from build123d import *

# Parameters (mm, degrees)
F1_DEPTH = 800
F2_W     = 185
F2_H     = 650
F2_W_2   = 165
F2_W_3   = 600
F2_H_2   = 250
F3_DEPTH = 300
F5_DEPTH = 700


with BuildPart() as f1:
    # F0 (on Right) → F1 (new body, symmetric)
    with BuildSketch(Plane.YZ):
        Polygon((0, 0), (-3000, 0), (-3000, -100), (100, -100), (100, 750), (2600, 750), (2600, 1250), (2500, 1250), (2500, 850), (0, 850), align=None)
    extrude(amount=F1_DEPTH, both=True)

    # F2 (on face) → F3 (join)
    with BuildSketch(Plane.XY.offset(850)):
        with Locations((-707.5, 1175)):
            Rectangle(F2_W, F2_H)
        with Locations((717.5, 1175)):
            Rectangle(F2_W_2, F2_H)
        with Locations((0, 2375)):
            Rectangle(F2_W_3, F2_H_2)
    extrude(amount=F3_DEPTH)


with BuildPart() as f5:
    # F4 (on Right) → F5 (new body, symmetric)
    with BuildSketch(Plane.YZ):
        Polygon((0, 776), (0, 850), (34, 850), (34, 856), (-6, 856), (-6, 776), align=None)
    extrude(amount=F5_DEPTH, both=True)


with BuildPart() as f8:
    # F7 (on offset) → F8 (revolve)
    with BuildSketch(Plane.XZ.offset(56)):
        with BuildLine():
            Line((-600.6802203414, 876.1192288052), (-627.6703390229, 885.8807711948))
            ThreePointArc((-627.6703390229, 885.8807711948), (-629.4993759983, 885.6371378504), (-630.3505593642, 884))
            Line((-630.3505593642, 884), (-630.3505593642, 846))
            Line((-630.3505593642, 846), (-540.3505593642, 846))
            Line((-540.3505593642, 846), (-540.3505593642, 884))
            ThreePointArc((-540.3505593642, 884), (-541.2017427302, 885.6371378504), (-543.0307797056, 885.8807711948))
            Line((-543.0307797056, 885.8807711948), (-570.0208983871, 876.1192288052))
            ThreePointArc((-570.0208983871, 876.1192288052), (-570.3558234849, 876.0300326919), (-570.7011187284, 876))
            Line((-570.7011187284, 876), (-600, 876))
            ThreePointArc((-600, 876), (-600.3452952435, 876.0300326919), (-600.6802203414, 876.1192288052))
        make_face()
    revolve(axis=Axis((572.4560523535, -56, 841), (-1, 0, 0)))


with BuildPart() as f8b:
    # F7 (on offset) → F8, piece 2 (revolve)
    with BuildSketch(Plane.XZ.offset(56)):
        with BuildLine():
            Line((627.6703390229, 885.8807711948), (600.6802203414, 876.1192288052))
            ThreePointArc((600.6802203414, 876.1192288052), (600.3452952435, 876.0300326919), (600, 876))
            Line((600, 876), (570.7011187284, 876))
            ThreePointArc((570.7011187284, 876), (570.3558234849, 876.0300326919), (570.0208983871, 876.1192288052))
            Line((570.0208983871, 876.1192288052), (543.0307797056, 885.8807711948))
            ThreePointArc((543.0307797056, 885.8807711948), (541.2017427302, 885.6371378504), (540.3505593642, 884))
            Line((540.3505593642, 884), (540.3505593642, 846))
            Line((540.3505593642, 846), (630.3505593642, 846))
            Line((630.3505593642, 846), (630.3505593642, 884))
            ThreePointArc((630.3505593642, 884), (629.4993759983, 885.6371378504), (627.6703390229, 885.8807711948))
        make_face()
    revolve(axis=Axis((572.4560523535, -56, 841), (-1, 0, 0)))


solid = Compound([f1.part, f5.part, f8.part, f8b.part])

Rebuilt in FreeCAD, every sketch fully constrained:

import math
import FreeCAD as App
import Part
import Sketcher
Q = App.Units.Quantity

doc = App.newDocument("Part")
body = doc.addObject("PartDesign::Body", "Body")

sketch1 = body.newObject("Sketcher::SketchObject", "Sketch")
sketch1.AttachmentSupport = (doc.getObject("YZ_Plane"), [""])
sketch1.MapMode = "FlatFace"
sketch1.addGeometry([
    Part.LineSegment(App.Vector(0, 0, 0), App.Vector(-3000, 0, 0)),
    Part.LineSegment(App.Vector(-3000, 0, 0), App.Vector(-3000, -100, 0)),
    Part.LineSegment(App.Vector(-3000, -100, 0), App.Vector(100, -100, 0)),
    Part.LineSegment(App.Vector(100, -100, 0), App.Vector(100, 750, 0)),
    Part.LineSegment(App.Vector(100, 750, 0), App.Vector(2600, 750, 0)),
    Part.LineSegment(App.Vector(2600, 750, 0), App.Vector(2600, 1250, 0)),
    Part.LineSegment(App.Vector(2600, 1250, 0), App.Vector(2500, 1250, 0)),
    Part.LineSegment(App.Vector(2500, 1250, 0), App.Vector(2500, 850, 0)),
    Part.LineSegment(App.Vector(2500, 850, 0), App.Vector(0, 850, 0)),
    Part.LineSegment(App.Vector(0, 850, 0), App.Vector(0, 0, 0)),
], False)
sketch1.addConstraint([
    Sketcher.Constraint("Coincident", 0, 2, 1, 1),
    Sketcher.Constraint("Coincident", 1, 2, 2, 1),
    Sketcher.Constraint("Coincident", 2, 2, 3, 1),
    Sketcher.Constraint("Coincident", 3, 2, 4, 1),
    Sketcher.Constraint("Coincident", 4, 2, 5, 1),
    Sketcher.Constraint("Coincident", 5, 2, 6, 1),
    Sketcher.Constraint("Coincident", 6, 2, 7, 1),
    Sketcher.Constraint("Coincident", 7, 2, 8, 1),
    Sketcher.Constraint("Coincident", 8, 2, 9, 1),
    Sketcher.Constraint("Coincident", 9, 2, 0, 1),
    Sketcher.Constraint("Horizontal", 0),
    Sketcher.Constraint("Vertical", 1),
    Sketcher.Constraint("Horizontal", 2),
    Sketcher.Constraint("Vertical", 3),
    Sketcher.Constraint("Horizontal", 4),
    Sketcher.Constraint("Vertical", 5),
    Sketcher.Constraint("Horizontal", 6),
    Sketcher.Constraint("Vertical", 7),
    Sketcher.Constraint("Horizontal", 8),
    Sketcher.Constraint("Vertical", 9),
    Sketcher.Constraint("Coincident", 9, 2, -1, 1),
    Sketcher.Constraint("Equal", 4, 8),
    Sketcher.Constraint("Equal", 6, 1),
    Sketcher.Constraint("Equal", 3, 9),
    Sketcher.Constraint("DistanceX", 0, 2, 0, 1, Q("3000 mm")),
    Sketcher.Constraint("DistanceX", 2, 1, 2, 2, Q("3100 mm")),
    Sketcher.Constraint("DistanceX", 4, 1, 4, 2, Q("2500 mm")),
    Sketcher.Constraint("DistanceY", 3, 1, 3, 2, Q("850 mm")),
    Sketcher.Constraint("DistanceY", 5, 1, 5, 2, Q("500 mm")),
])
pad1 = body.newObject("PartDesign::Pad", "Pad")
pad1.Profile = sketch1
pad1.Length = 1600
pad1.Midplane = True

sketch2 = body.newObject("Sketcher::SketchObject", "Sketch001")
sketch2.AttachmentSupport = (doc.getObject("XY_Plane"), [""])
sketch2.MapMode = "FlatFace"
sketch2.AttachmentOffset = App.Placement(App.Vector(0, 0, 850), App.Rotation())
sketch2.addGeometry([
    Part.LineSegment(App.Vector(-800, 1500, 0), App.Vector(-800, 850, 0)),
    Part.LineSegment(App.Vector(-800, 850, 0), App.Vector(-615, 850, 0)),
    Part.LineSegment(App.Vector(-615, 850, 0), App.Vector(-615, 1500, 0)),
    Part.LineSegment(App.Vector(-615, 1500, 0), App.Vector(-800, 1500, 0)),
    Part.LineSegment(App.Vector(635, 1500, 0), App.Vector(635, 850, 0)),
    Part.LineSegment(App.Vector(635, 850, 0), App.Vector(800, 850, 0)),
    Part.LineSegment(App.Vector(800, 850, 0), App.Vector(800, 1500, 0)),
    Part.LineSegment(App.Vector(800, 1500, 0), App.Vector(635, 1500, 0)),
    Part.LineSegment(App.Vector(-300, 2500, 0), App.Vector(-300, 2250, 0)),
    Part.LineSegment(App.Vector(-300, 2250, 0), App.Vector(300, 2250, 0)),
    Part.LineSegment(App.Vector(300, 2250, 0), App.Vector(300, 2500, 0)),
    Part.LineSegment(App.Vector(300, 2500, 0), App.Vector(-300, 2500, 0)),
], False)
sketch2.addConstraint([
    Sketcher.Constraint("Coincident", 0, 2, 1, 1),
    Sketcher.Constraint("Coincident", 1, 2, 2, 1),
    Sketcher.Constraint("Coincident", 2, 2, 3, 1),
    Sketcher.Constraint("Coincident", 3, 2, 0, 1),
    Sketcher.Constraint("Coincident", 4, 2, 5, 1),
    Sketcher.Constraint("Coincident", 5, 2, 6, 1),
    Sketcher.Constraint("Coincident", 6, 2, 7, 1),
    Sketcher.Constraint("Coincident", 7, 2, 4, 1),
    Sketcher.Constraint("Coincident", 8, 2, 9, 1),
    Sketcher.Constraint("Coincident", 9, 2, 10, 1),
    Sketcher.Constraint("Coincident", 10, 2, 11, 1),
    Sketcher.Constraint("Coincident", 11, 2, 8, 1),
    Sketcher.Constraint("Vertical", 0),
    Sketcher.Constraint("Horizontal", 1),
    Sketcher.Constraint("Vertical", 2),
    Sketcher.Constraint("Horizontal", 3),
    Sketcher.Constraint("Vertical", 4),
    Sketcher.Constraint("Horizontal", 5),
    Sketcher.Constraint("Vertical", 6),
    Sketcher.Constraint("Horizontal", 7),
    Sketcher.Constraint("Vertical", 8),
    Sketcher.Constraint("Horizontal", 9),
    Sketcher.Constraint("Vertical", 10),
    Sketcher.Constraint("Horizontal", 11),
    Sketcher.Constraint("Symmetric", 0, 2, 5, 2, -2),
    Sketcher.Constraint("Horizontal", 3, 2, 6, 2),
    Sketcher.Constraint("DistanceX", 1, 1, 1, 2, Q("185 mm")),
    Sketcher.Constraint("DistanceX", 5, 1, 5, 2, Q("165 mm")),
    Sketcher.Constraint("DistanceX", 9, 1, 9, 2, Q("600 mm")),
    Sketcher.Constraint("DistanceY", 0, 2, 0, 1, Q("650 mm")),
    Sketcher.Constraint("DistanceY", 8, 2, 8, 1, Q("250 mm")),
    Sketcher.Constraint("DistanceX", 0, 2, -1, 1, Q("800 mm")),
    Sketcher.Constraint("DistanceY", -1, 1, 0, 2, Q("850 mm")),
    Sketcher.Constraint("DistanceX", 8, 2, -1, 1, Q("300 mm")),
    Sketcher.Constraint("DistanceY", -1, 1, 8, 2, Q("2250 mm")),
])
pad2 = body.newObject("PartDesign::Pad", "Pad001")
pad2.Profile = sketch2
pad2.Length = 300
body2 = doc.addObject("PartDesign::Body", "Body001")

sketch3 = body2.newObject("Sketcher::SketchObject", "Sketch002")
sketch3.AttachmentSupport = (doc.getObject("YZ_Plane001"), [""])
sketch3.MapMode = "FlatFace"
sketch3.addGeometry([
    Part.LineSegment(App.Vector(0, 776, 0), App.Vector(0, 850, 0)),
    Part.LineSegment(App.Vector(0, 850, 0), App.Vector(34, 850, 0)),
    Part.LineSegment(App.Vector(34, 850, 0), App.Vector(34, 856, 0)),
    Part.LineSegment(App.Vector(34, 856, 0), App.Vector(-6, 856, 0)),
    Part.LineSegment(App.Vector(-6, 856, 0), App.Vector(-6, 776, 0)),
    Part.LineSegment(App.Vector(-6, 776, 0), App.Vector(0, 776, 0)),
], False)
sketch3.addConstraint([
    Sketcher.Constraint("Coincident", 0, 2, 1, 1),
    Sketcher.Constraint("Coincident", 1, 2, 2, 1),
    Sketcher.Constraint("Coincident", 2, 2, 3, 1),
    Sketcher.Constraint("Coincident", 3, 2, 4, 1),
    Sketcher.Constraint("Coincident", 4, 2, 5, 1),
    Sketcher.Constraint("Coincident", 5, 2, 0, 1),
    Sketcher.Constraint("Vertical", 0),
    Sketcher.Constraint("Horizontal", 1),
    Sketcher.Constraint("Vertical", 2),
    Sketcher.Constraint("Horizontal", 3),
    Sketcher.Constraint("Vertical", 4),
    Sketcher.Constraint("Horizontal", 5),
    Sketcher.Constraint("PointOnObject", 0, 2, -2),
    Sketcher.Constraint("Equal", 5, 2),
    Sketcher.Constraint("DistanceX", 1, 1, 1, 2, Q("34 mm")),
    Sketcher.Constraint("DistanceX", 3, 2, 3, 1, Q("40 mm")),
    Sketcher.Constraint("DistanceY", 0, 1, 0, 2, Q("74 mm")),
    Sketcher.Constraint("DistanceY", -1, 1, 0, 2, Q("850 mm")),
])
pad3 = body2.newObject("PartDesign::Pad", "Pad002")
pad3.Profile = sketch3
pad3.Length = 1400
pad3.Midplane = True
body3 = doc.addObject("PartDesign::Body", "Body002")

sketch4 = body3.newObject("Sketcher::SketchObject", "Sketch003")
sketch4.AttachmentSupport = (doc.getObject("XZ_Plane002"), [""])
sketch4.MapMode = "FlatFace"
sketch4.AttachmentOffset = App.Placement(App.Vector(0, 0, 56), App.Rotation())
sketch4.addGeometry([
    Part.LineSegment(App.Vector(-600.68022, 876.119229, 0), App.Vector(-627.670339, 885.880771, 0)),
    Part.ArcOfCircle(Part.Circle(App.Vector(-628.350559, 884, 0), App.Vector(0, 0, 1), 2), math.radians(70.116414), math.radians(180)),
    Part.LineSegment(App.Vector(-630.350559, 884, 0), App.Vector(-630.350559, 846, 0)),
    Part.LineSegment(App.Vector(-630.350559, 846, 0), App.Vector(-540.350559, 846, 0)),
    Part.LineSegment(App.Vector(-540.350559, 846, 0), App.Vector(-540.350559, 884, 0)),
    Part.ArcOfCircle(Part.Circle(App.Vector(-542.350559, 884, 0), App.Vector(0, 0, 1), 2), math.radians(0), math.radians(109.883586)),
    Part.LineSegment(App.Vector(-543.03078, 885.880771, 0), App.Vector(-570.020898, 876.119229, 0)),
    Part.ArcOfCircle(Part.Circle(App.Vector(-570.701119, 878, 0), App.Vector(0, 0, 1), 2), math.radians(-90), math.radians(-70.116414)),
    Part.LineSegment(App.Vector(-570.701119, 876, 0), App.Vector(-600, 876, 0)),
    Part.ArcOfCircle(Part.Circle(App.Vector(-600, 878, 0), App.Vector(0, 0, 1), 2), math.radians(-109.883586), math.radians(-90)),
], False)
sketch4.addGeometry(Part.LineSegment(App.Vector(-540.350559, 841, 0), App.Vector(-630.350559, 841, 0)), True)
sketch4.addConstraint([
    Sketcher.Constraint("Tangent", 0, 2, 1, 1),
    Sketcher.Constraint("Tangent", 1, 2, 2, 1),
    Sketcher.Constraint("Coincident", 2, 2, 3, 1),
    Sketcher.Constraint("Coincident", 3, 2, 4, 1),
    Sketcher.Constraint("Tangent", 4, 2, 5, 1),
    Sketcher.Constraint("Tangent", 5, 2, 6, 1),
    Sketcher.Constraint("Tangent", 6, 2, 7, 2),
    Sketcher.Constraint("Tangent", 7, 1, 8, 1),
    Sketcher.Constraint("Tangent", 8, 2, 9, 2),
    Sketcher.Constraint("Tangent", 9, 1, 0, 1),
    Sketcher.Constraint("Vertical", 2),
    Sketcher.Constraint("Horizontal", 3),
    Sketcher.Constraint("Vertical", 4),
    Sketcher.Constraint("Horizontal", 8),
    Sketcher.Constraint("Horizontal", 10),
    Sketcher.Constraint("Equal", 1, 5),
    Sketcher.Constraint("Equal", 5, 7),
    Sketcher.Constraint("Equal", 7, 9),
    Sketcher.Constraint("Horizontal", 1, 3, 5, 3),
    Sketcher.Constraint("Horizontal", 0, 2, 5, 2),
    Sketcher.Constraint("Vertical", 4, 2, 10, 1),
    Sketcher.Constraint("Vertical", 2, 2, 10, 2),
    Sketcher.Constraint("Radius", 1, Q("2 mm")),
    Sketcher.Constraint("DistanceX", 3, 1, 3, 2, Q("90 mm")),
    Sketcher.Constraint("DistanceY", 2, 2, 2, 1, Q("38 mm")),
    Sketcher.Constraint("DistanceY", -1, 1, 1, 3, Q("884 mm")),
    Sketcher.Constraint("DistanceY", -1, 1, 7, 3, Q("878 mm")),
    Sketcher.Constraint("DistanceX", 9, 3, -1, 1, Q("600 mm")),
    Sketcher.Constraint("DistanceY", -1, 1, 10, 1, Q("841 mm")),
    Sketcher.Constraint("DistanceX", 8, 2, 8, 1, Q("29.298881 mm")),
])
revolution = body3.newObject("PartDesign::Revolution", "Revolution")
revolution.Profile = sketch4
revolution.ReferenceAxis = (sketch4, ["Axis0"])
revolution.Angle = 360
body4 = doc.addObject("PartDesign::Body", "Body003")

sketch5 = body4.newObject("Sketcher::SketchObject", "Sketch004")
sketch5.AttachmentSupport = (doc.getObject("XZ_Plane003"), [""])
sketch5.MapMode = "FlatFace"
sketch5.AttachmentOffset = App.Placement(App.Vector(0, 0, 56), App.Rotation())
sketch5.addGeometry([
    Part.LineSegment(App.Vector(627.670339, 885.880771, 0), App.Vector(600.68022, 876.119229, 0)),
    Part.ArcOfCircle(Part.Circle(App.Vector(600, 878, 0), App.Vector(0, 0, 1), 2), math.radians(-90), math.radians(-70.116414)),
    Part.LineSegment(App.Vector(600, 876, 0), App.Vector(570.701119, 876, 0)),
    Part.ArcOfCircle(Part.Circle(App.Vector(570.701119, 878, 0), App.Vector(0, 0, 1), 2), math.radians(-109.883586), math.radians(-90)),
    Part.LineSegment(App.Vector(570.020898, 876.119229, 0), App.Vector(543.03078, 885.880771, 0)),
    Part.ArcOfCircle(Part.Circle(App.Vector(542.350559, 884, 0), App.Vector(0, 0, 1), 2), math.radians(70.116414), math.radians(180)),
    Part.LineSegment(App.Vector(540.350559, 884, 0), App.Vector(540.350559, 846, 0)),
    Part.LineSegment(App.Vector(540.350559, 846, 0), App.Vector(630.350559, 846, 0)),
    Part.LineSegment(App.Vector(630.350559, 846, 0), App.Vector(630.350559, 884, 0)),
    Part.ArcOfCircle(Part.Circle(App.Vector(628.350559, 884, 0), App.Vector(0, 0, 1), 2), math.radians(0), math.radians(109.883586)),
], False)
sketch5.addGeometry(Part.LineSegment(App.Vector(630.350559, 841, 0), App.Vector(540.350559, 841, 0)), True)
sketch5.addConstraint([
    Sketcher.Constraint("Tangent", 0, 2, 1, 2),
    Sketcher.Constraint("Tangent", 1, 1, 2, 1),
    Sketcher.Constraint("Tangent", 2, 2, 3, 2),
    Sketcher.Constraint("Tangent", 3, 1, 4, 1),
    Sketcher.Constraint("Tangent", 4, 2, 5, 1),
    Sketcher.Constraint("Tangent", 5, 2, 6, 1),
    Sketcher.Constraint("Coincident", 6, 2, 7, 1),
    Sketcher.Constraint("Coincident", 7, 2, 8, 1),
    Sketcher.Constraint("Tangent", 8, 2, 9, 1),
    Sketcher.Constraint("Tangent", 9, 2, 0, 1),
    Sketcher.Constraint("Horizontal", 2),
    Sketcher.Constraint("Vertical", 6),
    Sketcher.Constraint("Horizontal", 7),
    Sketcher.Constraint("Vertical", 8),
    Sketcher.Constraint("Horizontal", 10),
    Sketcher.Constraint("Equal", 1, 3),
    Sketcher.Constraint("Equal", 3, 5),
    Sketcher.Constraint("Equal", 5, 9),
    Sketcher.Constraint("Horizontal", 5, 3, 9, 3),
    Sketcher.Constraint("Horizontal", 0, 2, 3, 1),
    Sketcher.Constraint("Vertical", 8, 2, 10, 1),
    Sketcher.Constraint("Vertical", 6, 2, 10, 2),
    Sketcher.Constraint("Radius", 1, Q("2 mm")),
    Sketcher.Constraint("DistanceX", 7, 1, 7, 2, Q("90 mm")),
    Sketcher.Constraint("DistanceY", 6, 2, 6, 1, Q("38 mm")),
    Sketcher.Constraint("DistanceX", -1, 1, 1, 3, Q("600 mm")),
    Sketcher.Constraint("DistanceY", -1, 1, 1, 3, Q("878 mm")),
    Sketcher.Constraint("DistanceY", -1, 1, 5, 3, Q("884 mm")),
    Sketcher.Constraint("DistanceY", -1, 1, 10, 1, Q("841 mm")),
    Sketcher.Constraint("DistanceX", 2, 2, 2, 1, Q("29.298881 mm")),
])
revolution2 = body4.newObject("PartDesign::Revolution", "Revolution001")
revolution2.Profile = sketch5
revolution2.ReferenceAxis = (sketch5, ["Axis0"])
revolution2.Angle = 360

doc.recompute()
